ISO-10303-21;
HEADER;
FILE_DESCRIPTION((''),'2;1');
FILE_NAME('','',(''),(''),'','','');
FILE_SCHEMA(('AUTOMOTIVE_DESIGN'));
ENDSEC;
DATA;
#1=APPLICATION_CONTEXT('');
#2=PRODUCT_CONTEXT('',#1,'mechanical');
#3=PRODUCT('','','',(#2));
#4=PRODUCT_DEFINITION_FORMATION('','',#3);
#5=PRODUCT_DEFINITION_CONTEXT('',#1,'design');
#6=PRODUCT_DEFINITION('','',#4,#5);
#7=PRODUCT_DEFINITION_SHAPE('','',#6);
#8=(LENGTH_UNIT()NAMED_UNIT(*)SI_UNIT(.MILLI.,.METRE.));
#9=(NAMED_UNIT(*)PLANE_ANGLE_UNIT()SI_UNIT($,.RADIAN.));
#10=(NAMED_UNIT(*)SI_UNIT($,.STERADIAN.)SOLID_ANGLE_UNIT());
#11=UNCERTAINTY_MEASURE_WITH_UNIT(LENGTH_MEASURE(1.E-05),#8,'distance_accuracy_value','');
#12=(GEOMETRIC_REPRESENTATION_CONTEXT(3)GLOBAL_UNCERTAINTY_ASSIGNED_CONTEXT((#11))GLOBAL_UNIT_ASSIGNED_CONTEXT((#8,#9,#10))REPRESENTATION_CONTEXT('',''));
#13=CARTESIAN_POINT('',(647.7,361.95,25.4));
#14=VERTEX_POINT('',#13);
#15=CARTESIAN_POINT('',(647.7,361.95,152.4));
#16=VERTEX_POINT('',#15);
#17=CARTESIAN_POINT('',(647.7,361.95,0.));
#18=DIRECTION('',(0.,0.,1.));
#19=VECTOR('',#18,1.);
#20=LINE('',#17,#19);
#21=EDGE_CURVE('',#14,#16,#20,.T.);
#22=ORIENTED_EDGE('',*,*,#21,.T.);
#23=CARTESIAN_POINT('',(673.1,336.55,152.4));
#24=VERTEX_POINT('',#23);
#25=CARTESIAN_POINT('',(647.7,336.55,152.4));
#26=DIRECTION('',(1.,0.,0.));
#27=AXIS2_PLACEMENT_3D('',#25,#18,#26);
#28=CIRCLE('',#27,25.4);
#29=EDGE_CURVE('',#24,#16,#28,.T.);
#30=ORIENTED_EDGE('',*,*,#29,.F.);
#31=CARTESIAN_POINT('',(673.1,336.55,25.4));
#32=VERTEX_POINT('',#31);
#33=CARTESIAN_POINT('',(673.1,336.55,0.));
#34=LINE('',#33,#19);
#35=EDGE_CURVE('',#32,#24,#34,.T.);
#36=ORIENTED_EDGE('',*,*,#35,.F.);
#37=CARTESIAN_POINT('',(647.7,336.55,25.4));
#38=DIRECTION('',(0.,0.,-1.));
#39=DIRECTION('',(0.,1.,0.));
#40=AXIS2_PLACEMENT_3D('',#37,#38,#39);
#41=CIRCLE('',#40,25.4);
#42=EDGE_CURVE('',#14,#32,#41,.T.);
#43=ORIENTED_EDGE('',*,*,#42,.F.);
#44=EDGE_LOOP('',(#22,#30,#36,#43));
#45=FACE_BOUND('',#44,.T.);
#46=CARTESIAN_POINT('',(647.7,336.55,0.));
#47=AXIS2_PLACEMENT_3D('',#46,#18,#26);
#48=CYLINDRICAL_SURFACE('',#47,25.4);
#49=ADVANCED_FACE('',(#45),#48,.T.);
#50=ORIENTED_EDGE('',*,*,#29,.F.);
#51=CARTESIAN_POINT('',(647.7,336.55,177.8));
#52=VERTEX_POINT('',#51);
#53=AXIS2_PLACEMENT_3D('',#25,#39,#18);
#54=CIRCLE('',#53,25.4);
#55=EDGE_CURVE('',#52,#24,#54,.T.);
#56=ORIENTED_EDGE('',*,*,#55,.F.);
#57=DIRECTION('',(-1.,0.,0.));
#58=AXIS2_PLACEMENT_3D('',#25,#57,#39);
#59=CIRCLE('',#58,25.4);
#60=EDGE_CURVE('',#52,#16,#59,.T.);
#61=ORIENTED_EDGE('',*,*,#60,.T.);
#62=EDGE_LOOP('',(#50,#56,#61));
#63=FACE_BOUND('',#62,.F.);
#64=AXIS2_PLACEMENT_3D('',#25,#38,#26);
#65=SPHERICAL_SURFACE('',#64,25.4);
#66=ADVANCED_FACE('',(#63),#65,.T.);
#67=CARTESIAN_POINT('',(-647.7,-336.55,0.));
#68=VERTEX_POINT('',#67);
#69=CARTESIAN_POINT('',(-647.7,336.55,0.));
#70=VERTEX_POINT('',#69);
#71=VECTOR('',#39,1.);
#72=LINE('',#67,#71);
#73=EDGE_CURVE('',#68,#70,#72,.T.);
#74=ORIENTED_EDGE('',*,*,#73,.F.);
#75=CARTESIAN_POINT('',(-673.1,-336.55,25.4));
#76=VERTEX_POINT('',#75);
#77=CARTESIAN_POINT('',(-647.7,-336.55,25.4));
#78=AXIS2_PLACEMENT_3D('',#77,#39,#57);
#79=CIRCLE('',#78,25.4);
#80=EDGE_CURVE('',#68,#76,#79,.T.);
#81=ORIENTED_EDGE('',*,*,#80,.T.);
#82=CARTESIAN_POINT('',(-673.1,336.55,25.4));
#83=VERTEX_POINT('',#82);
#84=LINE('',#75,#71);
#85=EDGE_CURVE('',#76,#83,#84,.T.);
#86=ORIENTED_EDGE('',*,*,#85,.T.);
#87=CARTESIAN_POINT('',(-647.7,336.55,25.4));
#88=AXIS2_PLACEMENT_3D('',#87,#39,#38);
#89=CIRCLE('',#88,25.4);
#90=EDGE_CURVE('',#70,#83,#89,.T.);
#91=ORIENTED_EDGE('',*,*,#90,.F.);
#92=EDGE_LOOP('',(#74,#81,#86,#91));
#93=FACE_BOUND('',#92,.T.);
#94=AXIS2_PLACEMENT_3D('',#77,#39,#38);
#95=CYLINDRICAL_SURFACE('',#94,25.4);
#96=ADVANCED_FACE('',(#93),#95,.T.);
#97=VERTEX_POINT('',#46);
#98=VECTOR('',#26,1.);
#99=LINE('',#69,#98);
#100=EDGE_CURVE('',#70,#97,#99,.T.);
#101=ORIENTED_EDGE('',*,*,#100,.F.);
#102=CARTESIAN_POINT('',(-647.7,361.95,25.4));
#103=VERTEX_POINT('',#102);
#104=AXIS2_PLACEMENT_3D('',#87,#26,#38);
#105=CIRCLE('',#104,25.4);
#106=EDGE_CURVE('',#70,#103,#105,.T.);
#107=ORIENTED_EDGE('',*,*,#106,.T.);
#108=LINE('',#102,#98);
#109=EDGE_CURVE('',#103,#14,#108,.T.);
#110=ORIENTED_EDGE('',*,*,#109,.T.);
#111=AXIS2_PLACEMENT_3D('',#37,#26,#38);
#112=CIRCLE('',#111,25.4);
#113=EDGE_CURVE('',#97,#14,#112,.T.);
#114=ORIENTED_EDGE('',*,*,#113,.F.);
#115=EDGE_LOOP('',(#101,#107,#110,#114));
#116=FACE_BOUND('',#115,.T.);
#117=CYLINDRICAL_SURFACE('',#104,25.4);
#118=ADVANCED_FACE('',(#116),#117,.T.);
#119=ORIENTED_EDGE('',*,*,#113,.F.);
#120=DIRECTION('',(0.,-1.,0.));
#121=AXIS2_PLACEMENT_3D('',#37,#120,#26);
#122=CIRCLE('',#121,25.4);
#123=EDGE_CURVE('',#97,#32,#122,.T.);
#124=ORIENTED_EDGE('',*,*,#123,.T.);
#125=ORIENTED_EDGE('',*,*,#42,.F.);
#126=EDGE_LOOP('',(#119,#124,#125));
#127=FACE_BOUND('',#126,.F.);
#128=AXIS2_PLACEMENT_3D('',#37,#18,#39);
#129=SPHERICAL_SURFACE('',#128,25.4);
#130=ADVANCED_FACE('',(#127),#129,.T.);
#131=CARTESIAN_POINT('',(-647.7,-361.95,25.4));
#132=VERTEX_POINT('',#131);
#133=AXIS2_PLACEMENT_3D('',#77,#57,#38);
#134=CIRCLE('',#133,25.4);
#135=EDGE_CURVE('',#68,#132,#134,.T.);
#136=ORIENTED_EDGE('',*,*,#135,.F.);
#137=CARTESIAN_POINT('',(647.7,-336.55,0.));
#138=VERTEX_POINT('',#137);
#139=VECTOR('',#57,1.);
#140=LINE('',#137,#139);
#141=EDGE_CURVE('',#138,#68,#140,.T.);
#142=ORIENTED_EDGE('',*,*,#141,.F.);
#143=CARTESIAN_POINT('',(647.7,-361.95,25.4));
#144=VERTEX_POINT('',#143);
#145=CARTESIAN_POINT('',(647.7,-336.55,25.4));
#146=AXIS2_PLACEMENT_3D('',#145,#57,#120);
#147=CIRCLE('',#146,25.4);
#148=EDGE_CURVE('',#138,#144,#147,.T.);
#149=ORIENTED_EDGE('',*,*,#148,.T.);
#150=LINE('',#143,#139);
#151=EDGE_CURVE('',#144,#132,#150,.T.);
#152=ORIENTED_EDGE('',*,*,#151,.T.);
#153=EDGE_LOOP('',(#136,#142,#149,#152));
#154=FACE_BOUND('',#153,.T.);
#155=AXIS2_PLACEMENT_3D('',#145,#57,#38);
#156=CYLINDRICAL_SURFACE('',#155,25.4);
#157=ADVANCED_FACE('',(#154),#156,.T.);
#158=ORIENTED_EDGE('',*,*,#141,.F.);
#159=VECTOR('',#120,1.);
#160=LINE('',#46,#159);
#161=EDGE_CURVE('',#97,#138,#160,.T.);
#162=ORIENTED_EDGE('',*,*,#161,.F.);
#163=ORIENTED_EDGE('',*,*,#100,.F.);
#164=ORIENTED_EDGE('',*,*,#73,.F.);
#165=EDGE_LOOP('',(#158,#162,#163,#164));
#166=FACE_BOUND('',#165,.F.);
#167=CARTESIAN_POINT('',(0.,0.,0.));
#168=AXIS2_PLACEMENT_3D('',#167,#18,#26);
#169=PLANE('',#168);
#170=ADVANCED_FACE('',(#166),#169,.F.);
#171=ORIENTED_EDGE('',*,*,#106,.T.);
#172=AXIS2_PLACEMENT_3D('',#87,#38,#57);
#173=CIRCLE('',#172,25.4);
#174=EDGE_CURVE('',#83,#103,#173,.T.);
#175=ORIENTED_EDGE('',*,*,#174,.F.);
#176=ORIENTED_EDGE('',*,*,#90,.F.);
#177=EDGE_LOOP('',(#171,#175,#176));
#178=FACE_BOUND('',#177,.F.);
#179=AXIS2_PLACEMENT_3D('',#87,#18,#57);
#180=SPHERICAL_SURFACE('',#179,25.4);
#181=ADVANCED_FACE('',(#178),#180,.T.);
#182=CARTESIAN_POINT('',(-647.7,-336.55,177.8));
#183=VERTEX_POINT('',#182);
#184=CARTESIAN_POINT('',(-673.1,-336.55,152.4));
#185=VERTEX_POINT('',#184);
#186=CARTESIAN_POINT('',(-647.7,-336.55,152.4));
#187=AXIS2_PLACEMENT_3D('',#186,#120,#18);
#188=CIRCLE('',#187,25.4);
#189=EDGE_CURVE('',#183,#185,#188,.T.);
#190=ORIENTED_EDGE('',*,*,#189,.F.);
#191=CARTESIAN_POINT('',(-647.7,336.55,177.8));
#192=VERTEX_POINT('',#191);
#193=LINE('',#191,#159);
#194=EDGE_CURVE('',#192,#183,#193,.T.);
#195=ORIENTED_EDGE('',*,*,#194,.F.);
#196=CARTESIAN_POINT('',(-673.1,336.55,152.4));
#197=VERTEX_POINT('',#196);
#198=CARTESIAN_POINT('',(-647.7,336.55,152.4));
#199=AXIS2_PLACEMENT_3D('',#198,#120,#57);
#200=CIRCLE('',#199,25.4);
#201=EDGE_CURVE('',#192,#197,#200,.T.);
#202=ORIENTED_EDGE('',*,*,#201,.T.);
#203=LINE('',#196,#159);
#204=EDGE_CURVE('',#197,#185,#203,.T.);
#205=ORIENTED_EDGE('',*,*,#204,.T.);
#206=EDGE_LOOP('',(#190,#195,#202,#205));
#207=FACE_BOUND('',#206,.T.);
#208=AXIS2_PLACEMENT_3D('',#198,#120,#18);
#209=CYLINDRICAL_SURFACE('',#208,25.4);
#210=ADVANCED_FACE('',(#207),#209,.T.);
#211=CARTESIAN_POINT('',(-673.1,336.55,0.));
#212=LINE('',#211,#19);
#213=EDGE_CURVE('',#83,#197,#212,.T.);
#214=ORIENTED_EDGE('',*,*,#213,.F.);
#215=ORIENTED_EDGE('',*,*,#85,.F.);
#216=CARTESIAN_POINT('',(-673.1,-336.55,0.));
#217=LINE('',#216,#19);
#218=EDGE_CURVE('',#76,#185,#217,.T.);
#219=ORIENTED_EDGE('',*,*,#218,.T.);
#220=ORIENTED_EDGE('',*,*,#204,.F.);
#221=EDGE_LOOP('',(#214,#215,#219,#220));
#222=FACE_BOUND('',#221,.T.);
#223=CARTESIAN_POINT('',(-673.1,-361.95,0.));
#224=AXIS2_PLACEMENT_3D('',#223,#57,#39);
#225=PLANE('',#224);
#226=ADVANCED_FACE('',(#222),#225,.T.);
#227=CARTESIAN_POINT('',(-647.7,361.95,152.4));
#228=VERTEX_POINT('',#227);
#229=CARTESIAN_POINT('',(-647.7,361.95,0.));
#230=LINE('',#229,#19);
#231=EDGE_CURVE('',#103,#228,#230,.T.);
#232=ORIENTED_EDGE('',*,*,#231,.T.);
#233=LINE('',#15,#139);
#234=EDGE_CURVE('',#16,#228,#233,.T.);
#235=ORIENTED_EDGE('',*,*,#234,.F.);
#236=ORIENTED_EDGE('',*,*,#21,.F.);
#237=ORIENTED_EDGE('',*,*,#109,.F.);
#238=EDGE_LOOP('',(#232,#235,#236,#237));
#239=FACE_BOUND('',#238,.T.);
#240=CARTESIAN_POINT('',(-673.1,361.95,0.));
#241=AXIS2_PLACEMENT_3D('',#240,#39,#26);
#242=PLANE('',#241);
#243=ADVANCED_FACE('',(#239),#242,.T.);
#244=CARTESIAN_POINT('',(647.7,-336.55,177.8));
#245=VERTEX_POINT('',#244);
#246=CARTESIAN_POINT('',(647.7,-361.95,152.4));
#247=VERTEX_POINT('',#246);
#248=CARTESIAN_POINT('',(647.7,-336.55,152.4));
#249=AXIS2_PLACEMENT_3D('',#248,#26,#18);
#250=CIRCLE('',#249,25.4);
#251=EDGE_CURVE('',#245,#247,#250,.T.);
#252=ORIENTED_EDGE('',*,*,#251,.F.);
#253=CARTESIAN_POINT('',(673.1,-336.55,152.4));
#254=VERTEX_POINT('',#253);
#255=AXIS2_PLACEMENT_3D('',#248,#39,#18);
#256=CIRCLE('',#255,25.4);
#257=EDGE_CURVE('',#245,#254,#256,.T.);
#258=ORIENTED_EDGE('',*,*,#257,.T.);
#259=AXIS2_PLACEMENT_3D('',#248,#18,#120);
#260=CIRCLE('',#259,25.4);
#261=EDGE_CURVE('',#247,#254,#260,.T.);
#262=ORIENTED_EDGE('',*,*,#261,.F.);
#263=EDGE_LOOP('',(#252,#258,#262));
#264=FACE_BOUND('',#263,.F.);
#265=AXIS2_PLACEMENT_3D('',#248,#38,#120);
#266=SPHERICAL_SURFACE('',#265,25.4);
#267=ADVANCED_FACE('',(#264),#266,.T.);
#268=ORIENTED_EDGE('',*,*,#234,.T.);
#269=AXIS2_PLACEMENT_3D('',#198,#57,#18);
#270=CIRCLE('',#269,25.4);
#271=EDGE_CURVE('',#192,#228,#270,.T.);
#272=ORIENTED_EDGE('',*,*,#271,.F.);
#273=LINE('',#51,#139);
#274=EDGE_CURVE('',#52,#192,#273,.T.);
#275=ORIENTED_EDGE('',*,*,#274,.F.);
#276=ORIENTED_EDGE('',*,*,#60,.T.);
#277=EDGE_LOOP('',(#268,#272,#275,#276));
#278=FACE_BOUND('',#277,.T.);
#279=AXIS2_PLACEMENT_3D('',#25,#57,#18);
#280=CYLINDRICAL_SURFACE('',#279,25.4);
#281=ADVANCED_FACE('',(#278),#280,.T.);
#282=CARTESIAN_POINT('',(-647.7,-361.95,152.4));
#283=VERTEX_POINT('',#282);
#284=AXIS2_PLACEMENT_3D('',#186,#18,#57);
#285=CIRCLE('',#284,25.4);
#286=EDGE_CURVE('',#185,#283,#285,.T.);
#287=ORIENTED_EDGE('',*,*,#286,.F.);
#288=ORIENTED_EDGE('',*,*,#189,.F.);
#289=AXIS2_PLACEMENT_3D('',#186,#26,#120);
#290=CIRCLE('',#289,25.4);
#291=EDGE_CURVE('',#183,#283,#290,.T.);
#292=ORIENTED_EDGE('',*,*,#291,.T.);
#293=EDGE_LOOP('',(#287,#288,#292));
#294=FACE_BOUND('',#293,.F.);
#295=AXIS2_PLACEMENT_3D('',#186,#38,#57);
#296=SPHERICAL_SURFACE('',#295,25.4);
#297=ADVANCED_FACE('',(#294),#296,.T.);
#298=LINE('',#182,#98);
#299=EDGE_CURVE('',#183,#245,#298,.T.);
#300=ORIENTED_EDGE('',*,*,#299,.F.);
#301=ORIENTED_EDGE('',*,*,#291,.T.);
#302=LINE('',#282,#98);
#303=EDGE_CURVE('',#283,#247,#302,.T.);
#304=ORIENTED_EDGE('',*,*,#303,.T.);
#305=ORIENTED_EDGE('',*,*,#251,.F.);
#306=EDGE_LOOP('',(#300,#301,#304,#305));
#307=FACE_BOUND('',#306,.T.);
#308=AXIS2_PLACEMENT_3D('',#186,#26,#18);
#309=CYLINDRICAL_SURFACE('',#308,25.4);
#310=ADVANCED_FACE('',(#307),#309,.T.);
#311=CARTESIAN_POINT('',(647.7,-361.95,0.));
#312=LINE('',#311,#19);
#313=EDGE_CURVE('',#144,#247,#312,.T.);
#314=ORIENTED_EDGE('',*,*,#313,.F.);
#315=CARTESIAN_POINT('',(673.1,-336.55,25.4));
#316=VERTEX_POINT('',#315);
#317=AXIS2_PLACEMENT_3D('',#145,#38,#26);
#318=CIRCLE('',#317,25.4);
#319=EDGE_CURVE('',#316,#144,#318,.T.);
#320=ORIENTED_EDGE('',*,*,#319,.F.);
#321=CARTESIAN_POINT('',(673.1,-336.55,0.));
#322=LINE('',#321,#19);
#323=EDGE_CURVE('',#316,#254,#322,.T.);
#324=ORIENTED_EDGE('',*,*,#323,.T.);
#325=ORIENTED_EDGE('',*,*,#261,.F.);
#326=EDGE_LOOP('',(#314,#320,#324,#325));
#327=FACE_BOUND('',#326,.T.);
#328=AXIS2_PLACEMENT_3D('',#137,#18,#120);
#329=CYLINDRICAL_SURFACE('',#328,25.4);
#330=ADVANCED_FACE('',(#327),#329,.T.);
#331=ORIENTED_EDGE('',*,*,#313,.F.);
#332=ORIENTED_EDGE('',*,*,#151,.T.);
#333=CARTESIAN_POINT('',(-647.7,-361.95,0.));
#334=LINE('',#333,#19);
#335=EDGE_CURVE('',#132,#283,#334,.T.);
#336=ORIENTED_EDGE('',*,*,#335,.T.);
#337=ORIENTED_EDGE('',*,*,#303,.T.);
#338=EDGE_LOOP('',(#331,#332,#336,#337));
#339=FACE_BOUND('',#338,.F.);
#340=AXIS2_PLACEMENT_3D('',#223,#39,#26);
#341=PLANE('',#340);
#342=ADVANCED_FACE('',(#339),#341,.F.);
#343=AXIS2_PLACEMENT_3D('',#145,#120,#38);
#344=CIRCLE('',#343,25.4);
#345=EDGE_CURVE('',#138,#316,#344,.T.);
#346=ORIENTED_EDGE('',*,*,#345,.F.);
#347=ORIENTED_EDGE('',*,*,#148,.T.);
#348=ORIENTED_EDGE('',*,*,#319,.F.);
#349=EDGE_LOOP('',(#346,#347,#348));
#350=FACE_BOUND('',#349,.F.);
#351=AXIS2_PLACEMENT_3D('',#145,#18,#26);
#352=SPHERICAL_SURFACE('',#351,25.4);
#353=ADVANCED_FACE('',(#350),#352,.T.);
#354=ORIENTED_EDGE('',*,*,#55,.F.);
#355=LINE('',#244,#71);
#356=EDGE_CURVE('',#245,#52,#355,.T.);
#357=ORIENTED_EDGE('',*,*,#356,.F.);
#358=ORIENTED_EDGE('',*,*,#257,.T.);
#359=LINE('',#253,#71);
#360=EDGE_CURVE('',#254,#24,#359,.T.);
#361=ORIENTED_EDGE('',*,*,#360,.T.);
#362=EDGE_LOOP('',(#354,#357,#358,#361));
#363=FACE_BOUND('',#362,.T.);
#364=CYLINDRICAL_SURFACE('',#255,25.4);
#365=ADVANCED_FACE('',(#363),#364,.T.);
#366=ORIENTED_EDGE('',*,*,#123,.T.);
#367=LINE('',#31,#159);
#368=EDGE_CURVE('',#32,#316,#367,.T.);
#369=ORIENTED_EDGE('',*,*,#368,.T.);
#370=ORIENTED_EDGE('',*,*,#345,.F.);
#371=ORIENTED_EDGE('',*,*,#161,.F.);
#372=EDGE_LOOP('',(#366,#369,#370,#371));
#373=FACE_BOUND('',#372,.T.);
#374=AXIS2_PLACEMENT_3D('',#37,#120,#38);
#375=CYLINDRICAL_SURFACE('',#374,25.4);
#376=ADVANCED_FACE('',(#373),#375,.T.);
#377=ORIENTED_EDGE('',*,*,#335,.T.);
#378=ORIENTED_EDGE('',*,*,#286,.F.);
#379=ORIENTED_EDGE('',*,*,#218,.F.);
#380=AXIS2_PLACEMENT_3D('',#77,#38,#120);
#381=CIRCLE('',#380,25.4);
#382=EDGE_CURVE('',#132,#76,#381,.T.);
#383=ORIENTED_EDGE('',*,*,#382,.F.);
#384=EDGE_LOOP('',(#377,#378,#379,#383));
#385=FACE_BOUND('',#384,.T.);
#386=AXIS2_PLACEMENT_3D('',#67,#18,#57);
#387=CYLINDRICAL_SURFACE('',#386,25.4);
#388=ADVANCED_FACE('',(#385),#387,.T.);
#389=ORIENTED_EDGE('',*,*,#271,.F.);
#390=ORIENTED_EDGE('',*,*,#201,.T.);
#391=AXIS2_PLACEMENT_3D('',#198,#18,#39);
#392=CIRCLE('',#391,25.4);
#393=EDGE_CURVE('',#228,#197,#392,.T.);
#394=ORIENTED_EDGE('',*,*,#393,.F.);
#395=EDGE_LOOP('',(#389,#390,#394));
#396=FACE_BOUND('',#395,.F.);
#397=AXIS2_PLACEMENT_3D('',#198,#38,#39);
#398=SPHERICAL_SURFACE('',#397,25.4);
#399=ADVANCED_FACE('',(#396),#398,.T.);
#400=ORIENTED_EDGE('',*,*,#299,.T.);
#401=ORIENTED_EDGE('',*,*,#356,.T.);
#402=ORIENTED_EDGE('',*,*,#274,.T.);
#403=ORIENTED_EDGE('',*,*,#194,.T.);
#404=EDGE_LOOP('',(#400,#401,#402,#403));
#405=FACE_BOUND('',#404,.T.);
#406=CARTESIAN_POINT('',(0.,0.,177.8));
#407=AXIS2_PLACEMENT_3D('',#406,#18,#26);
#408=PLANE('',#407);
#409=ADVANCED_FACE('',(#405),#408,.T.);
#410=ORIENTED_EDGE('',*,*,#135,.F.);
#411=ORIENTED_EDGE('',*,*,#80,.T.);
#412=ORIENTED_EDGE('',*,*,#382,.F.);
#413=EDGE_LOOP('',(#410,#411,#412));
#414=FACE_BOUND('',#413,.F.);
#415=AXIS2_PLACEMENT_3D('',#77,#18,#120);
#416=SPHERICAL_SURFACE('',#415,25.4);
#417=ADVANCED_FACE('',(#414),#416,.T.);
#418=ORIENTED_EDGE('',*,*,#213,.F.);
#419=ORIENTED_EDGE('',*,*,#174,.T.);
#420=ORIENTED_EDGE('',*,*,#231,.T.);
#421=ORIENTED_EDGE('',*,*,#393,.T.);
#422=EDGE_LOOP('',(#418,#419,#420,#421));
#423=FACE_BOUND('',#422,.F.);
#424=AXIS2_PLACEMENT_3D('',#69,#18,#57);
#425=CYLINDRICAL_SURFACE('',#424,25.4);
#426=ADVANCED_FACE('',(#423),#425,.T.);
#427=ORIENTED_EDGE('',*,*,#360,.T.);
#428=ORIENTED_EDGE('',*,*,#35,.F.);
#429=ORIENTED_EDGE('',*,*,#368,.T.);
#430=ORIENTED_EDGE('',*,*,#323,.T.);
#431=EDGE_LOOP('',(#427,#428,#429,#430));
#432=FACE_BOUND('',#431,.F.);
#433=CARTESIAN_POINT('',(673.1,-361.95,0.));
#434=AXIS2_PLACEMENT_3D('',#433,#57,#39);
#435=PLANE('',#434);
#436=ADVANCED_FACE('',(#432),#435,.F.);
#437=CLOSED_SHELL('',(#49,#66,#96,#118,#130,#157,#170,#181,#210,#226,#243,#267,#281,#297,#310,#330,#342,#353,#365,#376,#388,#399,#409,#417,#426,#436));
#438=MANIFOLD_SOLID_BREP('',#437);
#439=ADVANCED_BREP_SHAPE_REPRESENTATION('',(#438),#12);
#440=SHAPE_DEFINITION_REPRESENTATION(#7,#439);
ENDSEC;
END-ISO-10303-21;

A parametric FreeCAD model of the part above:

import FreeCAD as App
import Part
import Sketcher
from FreeCAD import Vector
Q = App.Units.Quantity


def edges_at(feature, points):
    """Names of the edges that pass closest to the given points."""
    edges = feature.Shape.Edges
    near = lambda p: min(range(len(edges)), key=lambda i: edges[i].distToShape(Part.Vertex(*p))[0])
    return sorted({f"Edge{near(p) + 1}" for p in points})

doc = App.newDocument("Part")
body = doc.addObject("PartDesign::Body", "Body")

# Sketch on XY plane
sketch1 = body.newObject("Sketcher::SketchObject", "Sketch")
sketch1.AttachmentSupport = (doc.getObject("XY_Plane"), [""])
sketch1.MapMode = "FlatFace"
sketch1.addGeometry(Part.LineSegment(Vector(-673, 362, 0), Vector(-673, -362, 0)), False)
sketch1.addGeometry(Part.LineSegment(Vector(-673, -362, 0), Vector(673, -362, 0)), False)
sketch1.addGeometry(Part.LineSegment(Vector(673, -362, 0), Vector(673, 362, 0)), False)
sketch1.addGeometry(Part.LineSegment(Vector(673, 362, 0), Vector(-673, 362, 0)), False)
sketch1.addConstraint(Sketcher.Constraint("Coincident", 0, 2, 1, 1))
sketch1.addConstraint(Sketcher.Constraint("Coincident", 1, 2, 2, 1))
sketch1.addConstraint(Sketcher.Constraint("Coincident", 2, 2, 3, 1))
sketch1.addConstraint(Sketcher.Constraint("Coincident", 3, 2, 0, 1))
sketch1.addConstraint(Sketcher.Constraint("Vertical", 0))
sketch1.addConstraint(Sketcher.Constraint("Horizontal", 1))
sketch1.addConstraint(Sketcher.Constraint("Vertical", 2))
sketch1.addConstraint(Sketcher.Constraint("Horizontal", 3))
sketch1.addConstraint(Sketcher.Constraint("Symmetric", 0, 2, 2, 2, -1, 1))
sketch1.addConstraint(Sketcher.Constraint("DistanceX", 1, 1, 1, 2, Q("53 in")))
sketch1.addConstraint(Sketcher.Constraint("DistanceY", 0, 2, 0, 1, Q("28.5 in")))
pad1 = body.newObject("PartDesign::Pad", "Pad")
pad1.Profile = sketch1
pad1.Length = Q("7 in")
doc.recompute()

fillet = body.newObject("PartDesign::Fillet", "Fillet")
fillet.Base = (pad1, edges_at(pad1, [
    (673.1, -361.95, 88.9),
    (-673.1, -361.95, 88.9),
    (673.1, 361.95, 88.9),
    (-673.1, 361.95, 88.9),
]))
fillet.Radius = Q("1 in")
doc.recompute()

fillet2 = body.newObject("PartDesign::Fillet", "Fillet001")
fillet2.Base = (fillet, edges_at(fillet, [
    (0, 361.95, 0),
    (673.1, 0, 0),
    (0, -361.95, 0),
    (-673.1, 0, 0),
    (673.1, 0, 177.8),
    (0, -361.95, 177.8),
    (0, 361.95, 177.8),
    (-673.1, 0, 177.8),
]))
fillet2.Radius = Q("1 in")

doc.recompute()
